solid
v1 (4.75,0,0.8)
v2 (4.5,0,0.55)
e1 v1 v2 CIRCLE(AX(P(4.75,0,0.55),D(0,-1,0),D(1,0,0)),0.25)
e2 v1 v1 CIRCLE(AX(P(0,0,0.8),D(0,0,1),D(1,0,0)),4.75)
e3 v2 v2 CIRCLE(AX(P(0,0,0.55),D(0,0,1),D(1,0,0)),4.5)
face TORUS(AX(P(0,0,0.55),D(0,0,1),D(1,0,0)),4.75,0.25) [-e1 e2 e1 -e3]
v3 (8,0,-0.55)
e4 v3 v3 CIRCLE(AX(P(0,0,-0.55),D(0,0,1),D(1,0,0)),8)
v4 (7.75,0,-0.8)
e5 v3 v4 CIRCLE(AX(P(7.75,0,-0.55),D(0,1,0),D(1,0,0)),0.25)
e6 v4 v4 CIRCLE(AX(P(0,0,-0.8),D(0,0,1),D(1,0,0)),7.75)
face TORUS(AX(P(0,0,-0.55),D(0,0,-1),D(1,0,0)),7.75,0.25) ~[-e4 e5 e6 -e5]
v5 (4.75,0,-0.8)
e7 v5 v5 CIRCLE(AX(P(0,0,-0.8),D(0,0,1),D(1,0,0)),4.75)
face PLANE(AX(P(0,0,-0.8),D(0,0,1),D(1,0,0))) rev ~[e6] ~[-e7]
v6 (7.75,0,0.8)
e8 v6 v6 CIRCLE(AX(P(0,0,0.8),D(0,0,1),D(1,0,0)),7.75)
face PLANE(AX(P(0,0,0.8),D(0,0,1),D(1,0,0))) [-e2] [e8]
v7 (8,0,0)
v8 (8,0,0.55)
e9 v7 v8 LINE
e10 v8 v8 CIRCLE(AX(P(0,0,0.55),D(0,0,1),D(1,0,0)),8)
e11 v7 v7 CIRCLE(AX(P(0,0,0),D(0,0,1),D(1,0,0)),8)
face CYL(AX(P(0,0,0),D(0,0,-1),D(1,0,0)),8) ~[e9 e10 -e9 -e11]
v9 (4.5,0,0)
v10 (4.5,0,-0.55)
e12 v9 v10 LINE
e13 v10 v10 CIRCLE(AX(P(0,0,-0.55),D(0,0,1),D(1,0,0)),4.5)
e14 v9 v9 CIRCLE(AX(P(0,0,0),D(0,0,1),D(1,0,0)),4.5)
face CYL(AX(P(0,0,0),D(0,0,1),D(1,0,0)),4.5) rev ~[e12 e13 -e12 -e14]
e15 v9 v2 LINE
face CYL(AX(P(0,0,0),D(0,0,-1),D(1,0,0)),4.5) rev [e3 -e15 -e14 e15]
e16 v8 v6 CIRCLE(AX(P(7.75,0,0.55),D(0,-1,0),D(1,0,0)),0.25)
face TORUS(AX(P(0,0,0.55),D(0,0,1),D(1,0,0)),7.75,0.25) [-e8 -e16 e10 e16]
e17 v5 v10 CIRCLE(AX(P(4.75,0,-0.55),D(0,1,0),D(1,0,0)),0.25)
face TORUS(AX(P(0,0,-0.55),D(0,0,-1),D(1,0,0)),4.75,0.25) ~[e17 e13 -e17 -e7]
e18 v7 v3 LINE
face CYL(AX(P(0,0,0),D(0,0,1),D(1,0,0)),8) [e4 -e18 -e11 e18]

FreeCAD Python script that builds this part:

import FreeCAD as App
import Part
import Sketcher

V = App.Vector
Q = App.Units.Quantity


def edges_at(feature, points):
    """Names of the edges that pass closest to the given points."""
    edges = feature.Shape.Edges
    near = lambda p: min(range(len(edges)), key=lambda i: edges[i].distToShape(Part.Vertex(*p))[0])
    return sorted({f"Edge{near(p) + 1}" for p in points})

doc = App.newDocument("Part")
body = doc.addObject("PartDesign::Body", "Body")

sketch1 = body.newObject("Sketcher::SketchObject", "Sketch")
sketch1.AttachmentSupport = (doc.getObject("XY_Plane"), [""])
sketch1.MapMode = "FlatFace"
sketch1.addGeometry(Part.Circle(V(0, 0, 0), V(0, 0, 1), 8), False)
sketch1.addGeometry(Part.Circle(V(0, 0, 0), V(0, 0, 1), 4.5), False)
sketch1.addConstraint(Sketcher.Constraint("Coincident", 0, 3, -1, 1))
sketch1.addConstraint(Sketcher.Constraint("Coincident", 1, 3, -1, 1))
sketch1.addConstraint(Sketcher.Constraint("Diameter", 0, Q("16 mm")))
sketch1.addConstraint(Sketcher.Constraint("Diameter", 1, Q("9 mm")))
pad1 = body.newObject("PartDesign::Pad", "Pad")
pad1.Profile = sketch1
pad1.Length = 1.6
pad1.Midplane = True
doc.recompute()

fillet = body.newObject("PartDesign::Fillet", "Fillet")
fillet.Base = (pad1, edges_at(pad1, [
    (-8, 0, 0.8),
    (-8, 0, -0.8),
    (-4.5, 0, 0.8),
    (-4.5, 0, -0.8),
]))
fillet.Radius = 0.25

doc.recompute()
